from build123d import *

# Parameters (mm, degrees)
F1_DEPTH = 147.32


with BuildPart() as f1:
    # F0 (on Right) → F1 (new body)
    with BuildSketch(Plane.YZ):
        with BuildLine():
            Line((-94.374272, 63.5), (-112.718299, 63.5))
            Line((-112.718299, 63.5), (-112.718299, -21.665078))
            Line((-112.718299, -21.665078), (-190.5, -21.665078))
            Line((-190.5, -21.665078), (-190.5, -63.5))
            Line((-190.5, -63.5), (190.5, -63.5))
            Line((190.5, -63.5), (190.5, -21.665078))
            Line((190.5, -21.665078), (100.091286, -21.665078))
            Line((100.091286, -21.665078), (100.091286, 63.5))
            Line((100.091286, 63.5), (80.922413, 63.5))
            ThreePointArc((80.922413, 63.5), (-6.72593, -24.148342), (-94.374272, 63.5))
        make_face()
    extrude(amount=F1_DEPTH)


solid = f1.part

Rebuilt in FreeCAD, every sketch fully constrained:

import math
import FreeCAD as App
import Part
import Sketcher
Q = App.Units.Quantity

doc = App.newDocument("Part")
body = doc.addObject("PartDesign::Body", "Body")

# Sketch on YZ plane
sketch1 = body.newObject("Sketcher::SketchObject", "Sketch")
sketch1.AttachmentSupport = (doc.getObject("YZ_Plane"), [""])
sketch1.MapMode = "FlatFace"
sketch1.addGeometry(Part.LineSegment(App.Vector(-94.374272, 63.5, 0), App.Vector(-112.718299, 63.5, 0)), False)
sketch1.addGeometry(Part.LineSegment(App.Vector(-112.718299, 63.5, 0), App.Vector(-112.718299, -21.665078, 0)), False)
sketch1.addGeometry(Part.LineSegment(App.Vector(-112.718299, -21.665078, 0), App.Vector(-190.5, -21.665078, 0)), False)
sketch1.addGeometry(Part.LineSegment(App.Vector(-190.5, -21.665078, 0), App.Vector(-190.5, -63.5, 0)), False)
sketch1.addGeometry(Part.LineSegment(App.Vector(-190.5, -63.5, 0), App.Vector(190.5, -63.5, 0)), False)
sketch1.addGeometry(Part.LineSegment(App.Vector(190.5, -63.5, 0), App.Vector(190.5, -21.665078, 0)), False)
sketch1.addGeometry(Part.LineSegment(App.Vector(190.5, -21.665078, 0), App.Vector(100.091286, -21.665078, 0)), False)
sketch1.addGeometry(Part.LineSegment(App.Vector(100.091286, -21.665078, 0), App.Vector(100.091286, 63.5, 0)), False)
sketch1.addGeometry(Part.LineSegment(App.Vector(100.091286, 63.5, 0), App.Vector(80.922413, 63.5, 0)), False)
sketch1.addGeometry(Part.ArcOfCircle(Part.Circle(App.Vector(-6.72593, 63.5, 0), App.Vector(0, 0, 1), 87.648342), math.radians(-180), math.radians(0)), False)
sketch1.addConstraint(Sketcher.Constraint("Coincident", 0, 2, 1, 1))
sketch1.addConstraint(Sketcher.Constraint("Coincident", 1, 2, 2, 1))
sketch1.addConstraint(Sketcher.Constraint("Coincident", 2, 2, 3, 1))
sketch1.addConstraint(Sketcher.Constraint("Coincident", 3, 2, 4, 1))
sketch1.addConstraint(Sketcher.Constraint("Coincident", 4, 2, 5, 1))
sketch1.addConstraint(Sketcher.Constraint("Coincident", 5, 2, 6, 1))
sketch1.addConstraint(Sketcher.Constraint("Coincident", 6, 2, 7, 1))
sketch1.addConstraint(Sketcher.Constraint("Coincident", 7, 2, 8, 1))
sketch1.addConstraint(Sketcher.Constraint("Coincident", 8, 2, 9, 2))
sketch1.addConstraint(Sketcher.Constraint("Coincident", 9, 1, 0, 1))
sketch1.addConstraint(Sketcher.Constraint("Horizontal", 0))
sketch1.addConstraint(Sketcher.Constraint("Vertical", 1))
sketch1.addConstraint(Sketcher.Constraint("Horizontal", 2))
sketch1.addConstraint(Sketcher.Constraint("Vertical", 3))
sketch1.addConstraint(Sketcher.Constraint("Horizontal", 4))
sketch1.addConstraint(Sketcher.Constraint("Vertical", 5))
sketch1.addConstraint(Sketcher.Constraint("Horizontal", 6))
sketch1.addConstraint(Sketcher.Constraint("Vertical", 7))
sketch1.addConstraint(Sketcher.Constraint("Horizontal", 8))
sketch1.addConstraint(Sketcher.Constraint("Symmetric", 2, 2, 5, 2, -2))
sketch1.addConstraint(Sketcher.Constraint("Horizontal", 9, 3, 0, 2))
sketch1.addConstraint(Sketcher.Constraint("Horizontal", 0, 2, 7, 2))
sketch1.addConstraint(Sketcher.Constraint("DistanceX", 4, 1, 4, 2, Q("15 in")))
sketch1.addConstraint(Sketcher.Constraint("DistanceY", 3, 2, 0, 2, Q("5 in")))
sketch1.addConstraint(Sketcher.Constraint("DistanceY", -1, 1, 9, 3, Q("2.5 in")))
sketch1.addConstraint(Sketcher.Constraint("DistanceX", 2, 2, 2, 1, Q("77.781701 mm")))
sketch1.addConstraint(Sketcher.Constraint("Radius", 9, Q("87.648342 mm")))
sketch1.addConstraint(Sketcher.Constraint("DistanceX", 0, 2, 0, 1, Q("18.344027 mm")))
sketch1.addConstraint(Sketcher.Constraint("DistanceX", 6, 2, 6, 1, Q("90.408714 mm")))
sketch1.addConstraint(Sketcher.Constraint("DistanceY", 1, 2, 1, 1, Q("85.165078 mm")))
pad1 = body.newObject("PartDesign::Pad", "Pad")
pad1.Profile = sketch1
pad1.Length = Q("5.8 in")

doc.recompute()
